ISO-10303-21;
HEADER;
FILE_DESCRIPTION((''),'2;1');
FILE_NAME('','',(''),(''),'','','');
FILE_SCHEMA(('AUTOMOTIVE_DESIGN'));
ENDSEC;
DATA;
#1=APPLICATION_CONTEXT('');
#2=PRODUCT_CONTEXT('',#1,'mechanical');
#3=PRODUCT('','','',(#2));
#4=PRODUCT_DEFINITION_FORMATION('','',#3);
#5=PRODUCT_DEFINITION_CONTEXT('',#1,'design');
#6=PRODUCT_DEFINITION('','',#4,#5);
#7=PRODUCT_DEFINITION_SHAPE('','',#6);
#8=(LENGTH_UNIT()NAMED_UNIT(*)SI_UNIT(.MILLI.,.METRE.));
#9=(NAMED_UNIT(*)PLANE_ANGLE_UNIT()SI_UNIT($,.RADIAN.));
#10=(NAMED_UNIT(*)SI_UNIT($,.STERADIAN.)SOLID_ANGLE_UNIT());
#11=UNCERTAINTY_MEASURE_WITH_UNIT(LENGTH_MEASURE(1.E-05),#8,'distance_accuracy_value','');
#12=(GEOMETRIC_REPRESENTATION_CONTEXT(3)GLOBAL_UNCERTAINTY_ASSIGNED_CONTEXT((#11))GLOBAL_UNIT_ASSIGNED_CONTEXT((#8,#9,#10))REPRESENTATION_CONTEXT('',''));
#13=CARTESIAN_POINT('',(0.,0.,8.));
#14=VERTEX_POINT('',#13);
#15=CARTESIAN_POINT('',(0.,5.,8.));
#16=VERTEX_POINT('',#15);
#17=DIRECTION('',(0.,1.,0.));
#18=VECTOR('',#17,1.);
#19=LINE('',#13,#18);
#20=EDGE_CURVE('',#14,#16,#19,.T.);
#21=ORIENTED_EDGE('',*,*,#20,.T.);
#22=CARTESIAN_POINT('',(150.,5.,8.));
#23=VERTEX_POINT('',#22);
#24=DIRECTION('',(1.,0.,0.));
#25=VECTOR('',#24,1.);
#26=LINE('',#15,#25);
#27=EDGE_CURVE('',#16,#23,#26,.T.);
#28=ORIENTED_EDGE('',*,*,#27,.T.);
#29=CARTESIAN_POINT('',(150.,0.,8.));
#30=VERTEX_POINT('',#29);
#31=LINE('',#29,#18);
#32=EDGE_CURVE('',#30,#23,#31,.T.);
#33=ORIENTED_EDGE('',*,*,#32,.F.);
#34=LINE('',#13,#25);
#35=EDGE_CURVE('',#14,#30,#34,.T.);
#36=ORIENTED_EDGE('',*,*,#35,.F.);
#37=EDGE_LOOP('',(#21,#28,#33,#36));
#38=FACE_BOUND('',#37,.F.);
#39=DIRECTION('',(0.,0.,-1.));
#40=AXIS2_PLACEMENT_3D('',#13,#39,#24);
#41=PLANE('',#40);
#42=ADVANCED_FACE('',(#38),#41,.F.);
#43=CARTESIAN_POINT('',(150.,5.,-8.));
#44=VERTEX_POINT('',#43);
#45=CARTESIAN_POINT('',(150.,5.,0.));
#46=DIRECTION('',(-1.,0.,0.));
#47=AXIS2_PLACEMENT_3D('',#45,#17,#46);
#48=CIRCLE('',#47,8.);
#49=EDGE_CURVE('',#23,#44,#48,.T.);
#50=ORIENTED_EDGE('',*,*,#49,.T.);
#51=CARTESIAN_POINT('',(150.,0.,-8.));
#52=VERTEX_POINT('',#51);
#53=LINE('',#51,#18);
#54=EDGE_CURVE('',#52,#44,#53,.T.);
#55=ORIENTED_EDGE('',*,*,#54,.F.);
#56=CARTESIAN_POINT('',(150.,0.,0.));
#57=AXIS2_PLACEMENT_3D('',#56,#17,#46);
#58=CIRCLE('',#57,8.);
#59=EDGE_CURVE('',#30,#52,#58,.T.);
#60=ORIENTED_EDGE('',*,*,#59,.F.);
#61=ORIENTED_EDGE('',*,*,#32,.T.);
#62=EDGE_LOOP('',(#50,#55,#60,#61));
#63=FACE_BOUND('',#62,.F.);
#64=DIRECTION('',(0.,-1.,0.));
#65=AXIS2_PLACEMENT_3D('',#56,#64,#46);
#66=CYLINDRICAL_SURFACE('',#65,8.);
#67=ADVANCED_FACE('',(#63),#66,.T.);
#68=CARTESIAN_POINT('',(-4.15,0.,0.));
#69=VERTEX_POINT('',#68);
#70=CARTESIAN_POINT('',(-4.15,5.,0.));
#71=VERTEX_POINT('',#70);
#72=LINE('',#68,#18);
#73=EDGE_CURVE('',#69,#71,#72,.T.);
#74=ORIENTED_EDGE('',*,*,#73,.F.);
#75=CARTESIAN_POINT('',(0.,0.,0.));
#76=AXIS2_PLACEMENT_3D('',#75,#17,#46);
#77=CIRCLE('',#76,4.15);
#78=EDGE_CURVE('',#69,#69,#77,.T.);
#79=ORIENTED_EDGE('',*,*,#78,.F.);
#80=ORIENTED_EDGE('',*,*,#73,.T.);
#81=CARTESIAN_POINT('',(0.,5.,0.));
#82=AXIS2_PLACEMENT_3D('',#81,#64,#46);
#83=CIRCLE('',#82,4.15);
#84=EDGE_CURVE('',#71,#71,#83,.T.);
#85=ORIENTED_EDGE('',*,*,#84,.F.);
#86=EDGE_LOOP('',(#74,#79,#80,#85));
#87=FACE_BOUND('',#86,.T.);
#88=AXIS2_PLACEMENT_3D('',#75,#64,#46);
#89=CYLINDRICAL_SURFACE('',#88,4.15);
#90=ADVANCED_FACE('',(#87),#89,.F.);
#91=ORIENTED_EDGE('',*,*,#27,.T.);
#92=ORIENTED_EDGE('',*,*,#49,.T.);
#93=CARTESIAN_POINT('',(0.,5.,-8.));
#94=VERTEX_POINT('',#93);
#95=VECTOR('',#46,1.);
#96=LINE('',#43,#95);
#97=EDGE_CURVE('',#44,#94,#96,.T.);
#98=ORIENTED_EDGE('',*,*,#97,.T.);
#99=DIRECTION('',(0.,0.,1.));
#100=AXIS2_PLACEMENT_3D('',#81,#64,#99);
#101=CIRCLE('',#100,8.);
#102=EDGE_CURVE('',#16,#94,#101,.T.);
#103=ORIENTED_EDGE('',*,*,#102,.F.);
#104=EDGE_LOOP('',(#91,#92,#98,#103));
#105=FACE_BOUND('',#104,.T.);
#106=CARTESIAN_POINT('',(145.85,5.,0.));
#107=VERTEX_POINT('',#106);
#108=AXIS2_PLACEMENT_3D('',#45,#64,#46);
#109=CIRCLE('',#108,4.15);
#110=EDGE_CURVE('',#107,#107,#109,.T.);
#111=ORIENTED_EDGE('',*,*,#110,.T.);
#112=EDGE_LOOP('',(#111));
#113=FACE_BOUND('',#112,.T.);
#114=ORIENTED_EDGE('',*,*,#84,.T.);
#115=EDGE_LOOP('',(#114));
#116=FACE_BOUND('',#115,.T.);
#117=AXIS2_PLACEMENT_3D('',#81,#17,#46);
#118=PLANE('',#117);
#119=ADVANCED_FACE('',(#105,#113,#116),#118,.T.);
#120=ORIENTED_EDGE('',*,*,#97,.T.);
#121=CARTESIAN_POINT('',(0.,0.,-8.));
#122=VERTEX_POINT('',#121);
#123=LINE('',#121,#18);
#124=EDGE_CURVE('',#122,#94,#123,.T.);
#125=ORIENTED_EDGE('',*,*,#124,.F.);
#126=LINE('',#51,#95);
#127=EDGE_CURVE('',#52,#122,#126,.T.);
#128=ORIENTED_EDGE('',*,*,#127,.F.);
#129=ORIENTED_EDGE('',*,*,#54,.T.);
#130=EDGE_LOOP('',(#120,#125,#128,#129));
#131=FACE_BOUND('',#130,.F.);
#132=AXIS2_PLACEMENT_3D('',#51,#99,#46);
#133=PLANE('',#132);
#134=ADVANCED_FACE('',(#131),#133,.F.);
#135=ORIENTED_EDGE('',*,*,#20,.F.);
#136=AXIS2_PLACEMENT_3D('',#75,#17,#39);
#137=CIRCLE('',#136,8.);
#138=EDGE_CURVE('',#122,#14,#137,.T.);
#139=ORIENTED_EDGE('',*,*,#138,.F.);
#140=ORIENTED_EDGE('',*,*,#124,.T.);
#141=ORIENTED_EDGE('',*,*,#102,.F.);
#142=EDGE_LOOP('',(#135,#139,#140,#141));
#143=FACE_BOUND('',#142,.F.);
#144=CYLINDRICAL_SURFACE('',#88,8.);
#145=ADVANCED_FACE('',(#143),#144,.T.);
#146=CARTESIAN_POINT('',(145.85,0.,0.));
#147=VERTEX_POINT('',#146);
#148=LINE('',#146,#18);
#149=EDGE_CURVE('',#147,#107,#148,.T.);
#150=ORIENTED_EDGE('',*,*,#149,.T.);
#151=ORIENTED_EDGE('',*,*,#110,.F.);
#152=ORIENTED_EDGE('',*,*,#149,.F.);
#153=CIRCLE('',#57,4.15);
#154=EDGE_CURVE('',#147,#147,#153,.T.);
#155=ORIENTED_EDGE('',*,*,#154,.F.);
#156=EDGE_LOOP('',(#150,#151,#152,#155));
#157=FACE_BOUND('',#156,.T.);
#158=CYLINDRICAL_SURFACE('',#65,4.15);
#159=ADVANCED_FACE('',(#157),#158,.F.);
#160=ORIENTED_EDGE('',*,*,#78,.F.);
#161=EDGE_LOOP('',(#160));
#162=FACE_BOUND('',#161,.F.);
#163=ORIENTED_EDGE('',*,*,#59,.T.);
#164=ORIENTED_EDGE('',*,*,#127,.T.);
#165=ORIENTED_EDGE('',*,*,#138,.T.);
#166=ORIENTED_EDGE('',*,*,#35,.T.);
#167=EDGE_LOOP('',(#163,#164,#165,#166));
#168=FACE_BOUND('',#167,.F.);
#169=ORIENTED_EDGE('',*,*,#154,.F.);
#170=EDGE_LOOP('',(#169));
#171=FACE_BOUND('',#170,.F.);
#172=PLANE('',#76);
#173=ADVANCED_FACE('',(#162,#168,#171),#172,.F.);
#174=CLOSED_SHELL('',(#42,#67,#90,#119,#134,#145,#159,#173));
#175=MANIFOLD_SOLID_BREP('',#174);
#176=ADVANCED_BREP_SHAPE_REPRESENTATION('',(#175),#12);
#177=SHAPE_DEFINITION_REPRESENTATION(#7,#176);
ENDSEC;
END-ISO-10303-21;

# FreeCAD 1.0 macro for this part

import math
import FreeCAD as App
import Part
import Sketcher

V = App.Vector

doc = App.newDocument("Part")
body = doc.addObject("PartDesign::Body", "Body")

# Sketch on XZ plane
sketch1 = body.newObject("Sketcher::SketchObject", "Sketch")
sketch1.AttachmentSupport = (doc.getObject("XZ_Plane"), [""])
sketch1.MapMode = "FlatFace"
sketch1.addGeometry(Part.ArcOfCircle(Part.Circle(V(0, 0, 0), V(0, 0, 1), 8), math.radians(90), math.radians(270)), False)
sketch1.addGeometry(Part.LineSegment(V(0, 8, 0), V(150, 8, 0)), False)
sketch1.addGeometry(Part.ArcOfCircle(Part.Circle(V(150, 0, 0), V(0, 0, 1), 8), math.radians(-90), math.radians(90)), False)
sketch1.addGeometry(Part.LineSegment(V(150, -8, 0), V(0, -8, 0)), False)
sketch1.addGeometry(Part.Circle(V(0, 0, 0), V(0, 0, 1), 4.2), False)
sketch1.addGeometry(Part.Circle(V(150, 0, 0), V(0, 0, 1), 4.2), False)
sketch1.addConstraint(Sketcher.Constraint("Tangent", 0, 1, 1, 1))
sketch1.addConstraint(Sketcher.Constraint("Tangent", 1, 2, 2, 2))
sketch1.addConstraint(Sketcher.Constraint("Tangent", 2, 1, 3, 1))
sketch1.addConstraint(Sketcher.Constraint("Tangent", 3, 2, 0, 2))
sketch1.addConstraint(Sketcher.Constraint("Horizontal", 1))
sketch1.addConstraint(Sketcher.Constraint("Horizontal", 3))
sketch1.addConstraint(Sketcher.Constraint("Coincident", 0, 3, -1, 1))
sketch1.addConstraint(Sketcher.Constraint("Coincident", 4, 3, -1, 1))
sketch1.addConstraint(Sketcher.Constraint("Coincident", 5, 3, 2, 3))
sketch1.addConstraint(Sketcher.Constraint("Equal", 4, 5))
sketch1.addConstraint(Sketcher.Constraint("Radius", 0, 8.0))
sketch1.addConstraint(Sketcher.Constraint("Diameter", 4, 8.3))
sketch1.addConstraint(Sketcher.Constraint("DistanceX", 1, 1, 1, 2, 150.0))
pad1 = body.newObject("PartDesign::Pad", "Pad")
pad1.Profile = sketch1
pad1.Length = 5
pad1.Reversed = True

doc.recompute()
